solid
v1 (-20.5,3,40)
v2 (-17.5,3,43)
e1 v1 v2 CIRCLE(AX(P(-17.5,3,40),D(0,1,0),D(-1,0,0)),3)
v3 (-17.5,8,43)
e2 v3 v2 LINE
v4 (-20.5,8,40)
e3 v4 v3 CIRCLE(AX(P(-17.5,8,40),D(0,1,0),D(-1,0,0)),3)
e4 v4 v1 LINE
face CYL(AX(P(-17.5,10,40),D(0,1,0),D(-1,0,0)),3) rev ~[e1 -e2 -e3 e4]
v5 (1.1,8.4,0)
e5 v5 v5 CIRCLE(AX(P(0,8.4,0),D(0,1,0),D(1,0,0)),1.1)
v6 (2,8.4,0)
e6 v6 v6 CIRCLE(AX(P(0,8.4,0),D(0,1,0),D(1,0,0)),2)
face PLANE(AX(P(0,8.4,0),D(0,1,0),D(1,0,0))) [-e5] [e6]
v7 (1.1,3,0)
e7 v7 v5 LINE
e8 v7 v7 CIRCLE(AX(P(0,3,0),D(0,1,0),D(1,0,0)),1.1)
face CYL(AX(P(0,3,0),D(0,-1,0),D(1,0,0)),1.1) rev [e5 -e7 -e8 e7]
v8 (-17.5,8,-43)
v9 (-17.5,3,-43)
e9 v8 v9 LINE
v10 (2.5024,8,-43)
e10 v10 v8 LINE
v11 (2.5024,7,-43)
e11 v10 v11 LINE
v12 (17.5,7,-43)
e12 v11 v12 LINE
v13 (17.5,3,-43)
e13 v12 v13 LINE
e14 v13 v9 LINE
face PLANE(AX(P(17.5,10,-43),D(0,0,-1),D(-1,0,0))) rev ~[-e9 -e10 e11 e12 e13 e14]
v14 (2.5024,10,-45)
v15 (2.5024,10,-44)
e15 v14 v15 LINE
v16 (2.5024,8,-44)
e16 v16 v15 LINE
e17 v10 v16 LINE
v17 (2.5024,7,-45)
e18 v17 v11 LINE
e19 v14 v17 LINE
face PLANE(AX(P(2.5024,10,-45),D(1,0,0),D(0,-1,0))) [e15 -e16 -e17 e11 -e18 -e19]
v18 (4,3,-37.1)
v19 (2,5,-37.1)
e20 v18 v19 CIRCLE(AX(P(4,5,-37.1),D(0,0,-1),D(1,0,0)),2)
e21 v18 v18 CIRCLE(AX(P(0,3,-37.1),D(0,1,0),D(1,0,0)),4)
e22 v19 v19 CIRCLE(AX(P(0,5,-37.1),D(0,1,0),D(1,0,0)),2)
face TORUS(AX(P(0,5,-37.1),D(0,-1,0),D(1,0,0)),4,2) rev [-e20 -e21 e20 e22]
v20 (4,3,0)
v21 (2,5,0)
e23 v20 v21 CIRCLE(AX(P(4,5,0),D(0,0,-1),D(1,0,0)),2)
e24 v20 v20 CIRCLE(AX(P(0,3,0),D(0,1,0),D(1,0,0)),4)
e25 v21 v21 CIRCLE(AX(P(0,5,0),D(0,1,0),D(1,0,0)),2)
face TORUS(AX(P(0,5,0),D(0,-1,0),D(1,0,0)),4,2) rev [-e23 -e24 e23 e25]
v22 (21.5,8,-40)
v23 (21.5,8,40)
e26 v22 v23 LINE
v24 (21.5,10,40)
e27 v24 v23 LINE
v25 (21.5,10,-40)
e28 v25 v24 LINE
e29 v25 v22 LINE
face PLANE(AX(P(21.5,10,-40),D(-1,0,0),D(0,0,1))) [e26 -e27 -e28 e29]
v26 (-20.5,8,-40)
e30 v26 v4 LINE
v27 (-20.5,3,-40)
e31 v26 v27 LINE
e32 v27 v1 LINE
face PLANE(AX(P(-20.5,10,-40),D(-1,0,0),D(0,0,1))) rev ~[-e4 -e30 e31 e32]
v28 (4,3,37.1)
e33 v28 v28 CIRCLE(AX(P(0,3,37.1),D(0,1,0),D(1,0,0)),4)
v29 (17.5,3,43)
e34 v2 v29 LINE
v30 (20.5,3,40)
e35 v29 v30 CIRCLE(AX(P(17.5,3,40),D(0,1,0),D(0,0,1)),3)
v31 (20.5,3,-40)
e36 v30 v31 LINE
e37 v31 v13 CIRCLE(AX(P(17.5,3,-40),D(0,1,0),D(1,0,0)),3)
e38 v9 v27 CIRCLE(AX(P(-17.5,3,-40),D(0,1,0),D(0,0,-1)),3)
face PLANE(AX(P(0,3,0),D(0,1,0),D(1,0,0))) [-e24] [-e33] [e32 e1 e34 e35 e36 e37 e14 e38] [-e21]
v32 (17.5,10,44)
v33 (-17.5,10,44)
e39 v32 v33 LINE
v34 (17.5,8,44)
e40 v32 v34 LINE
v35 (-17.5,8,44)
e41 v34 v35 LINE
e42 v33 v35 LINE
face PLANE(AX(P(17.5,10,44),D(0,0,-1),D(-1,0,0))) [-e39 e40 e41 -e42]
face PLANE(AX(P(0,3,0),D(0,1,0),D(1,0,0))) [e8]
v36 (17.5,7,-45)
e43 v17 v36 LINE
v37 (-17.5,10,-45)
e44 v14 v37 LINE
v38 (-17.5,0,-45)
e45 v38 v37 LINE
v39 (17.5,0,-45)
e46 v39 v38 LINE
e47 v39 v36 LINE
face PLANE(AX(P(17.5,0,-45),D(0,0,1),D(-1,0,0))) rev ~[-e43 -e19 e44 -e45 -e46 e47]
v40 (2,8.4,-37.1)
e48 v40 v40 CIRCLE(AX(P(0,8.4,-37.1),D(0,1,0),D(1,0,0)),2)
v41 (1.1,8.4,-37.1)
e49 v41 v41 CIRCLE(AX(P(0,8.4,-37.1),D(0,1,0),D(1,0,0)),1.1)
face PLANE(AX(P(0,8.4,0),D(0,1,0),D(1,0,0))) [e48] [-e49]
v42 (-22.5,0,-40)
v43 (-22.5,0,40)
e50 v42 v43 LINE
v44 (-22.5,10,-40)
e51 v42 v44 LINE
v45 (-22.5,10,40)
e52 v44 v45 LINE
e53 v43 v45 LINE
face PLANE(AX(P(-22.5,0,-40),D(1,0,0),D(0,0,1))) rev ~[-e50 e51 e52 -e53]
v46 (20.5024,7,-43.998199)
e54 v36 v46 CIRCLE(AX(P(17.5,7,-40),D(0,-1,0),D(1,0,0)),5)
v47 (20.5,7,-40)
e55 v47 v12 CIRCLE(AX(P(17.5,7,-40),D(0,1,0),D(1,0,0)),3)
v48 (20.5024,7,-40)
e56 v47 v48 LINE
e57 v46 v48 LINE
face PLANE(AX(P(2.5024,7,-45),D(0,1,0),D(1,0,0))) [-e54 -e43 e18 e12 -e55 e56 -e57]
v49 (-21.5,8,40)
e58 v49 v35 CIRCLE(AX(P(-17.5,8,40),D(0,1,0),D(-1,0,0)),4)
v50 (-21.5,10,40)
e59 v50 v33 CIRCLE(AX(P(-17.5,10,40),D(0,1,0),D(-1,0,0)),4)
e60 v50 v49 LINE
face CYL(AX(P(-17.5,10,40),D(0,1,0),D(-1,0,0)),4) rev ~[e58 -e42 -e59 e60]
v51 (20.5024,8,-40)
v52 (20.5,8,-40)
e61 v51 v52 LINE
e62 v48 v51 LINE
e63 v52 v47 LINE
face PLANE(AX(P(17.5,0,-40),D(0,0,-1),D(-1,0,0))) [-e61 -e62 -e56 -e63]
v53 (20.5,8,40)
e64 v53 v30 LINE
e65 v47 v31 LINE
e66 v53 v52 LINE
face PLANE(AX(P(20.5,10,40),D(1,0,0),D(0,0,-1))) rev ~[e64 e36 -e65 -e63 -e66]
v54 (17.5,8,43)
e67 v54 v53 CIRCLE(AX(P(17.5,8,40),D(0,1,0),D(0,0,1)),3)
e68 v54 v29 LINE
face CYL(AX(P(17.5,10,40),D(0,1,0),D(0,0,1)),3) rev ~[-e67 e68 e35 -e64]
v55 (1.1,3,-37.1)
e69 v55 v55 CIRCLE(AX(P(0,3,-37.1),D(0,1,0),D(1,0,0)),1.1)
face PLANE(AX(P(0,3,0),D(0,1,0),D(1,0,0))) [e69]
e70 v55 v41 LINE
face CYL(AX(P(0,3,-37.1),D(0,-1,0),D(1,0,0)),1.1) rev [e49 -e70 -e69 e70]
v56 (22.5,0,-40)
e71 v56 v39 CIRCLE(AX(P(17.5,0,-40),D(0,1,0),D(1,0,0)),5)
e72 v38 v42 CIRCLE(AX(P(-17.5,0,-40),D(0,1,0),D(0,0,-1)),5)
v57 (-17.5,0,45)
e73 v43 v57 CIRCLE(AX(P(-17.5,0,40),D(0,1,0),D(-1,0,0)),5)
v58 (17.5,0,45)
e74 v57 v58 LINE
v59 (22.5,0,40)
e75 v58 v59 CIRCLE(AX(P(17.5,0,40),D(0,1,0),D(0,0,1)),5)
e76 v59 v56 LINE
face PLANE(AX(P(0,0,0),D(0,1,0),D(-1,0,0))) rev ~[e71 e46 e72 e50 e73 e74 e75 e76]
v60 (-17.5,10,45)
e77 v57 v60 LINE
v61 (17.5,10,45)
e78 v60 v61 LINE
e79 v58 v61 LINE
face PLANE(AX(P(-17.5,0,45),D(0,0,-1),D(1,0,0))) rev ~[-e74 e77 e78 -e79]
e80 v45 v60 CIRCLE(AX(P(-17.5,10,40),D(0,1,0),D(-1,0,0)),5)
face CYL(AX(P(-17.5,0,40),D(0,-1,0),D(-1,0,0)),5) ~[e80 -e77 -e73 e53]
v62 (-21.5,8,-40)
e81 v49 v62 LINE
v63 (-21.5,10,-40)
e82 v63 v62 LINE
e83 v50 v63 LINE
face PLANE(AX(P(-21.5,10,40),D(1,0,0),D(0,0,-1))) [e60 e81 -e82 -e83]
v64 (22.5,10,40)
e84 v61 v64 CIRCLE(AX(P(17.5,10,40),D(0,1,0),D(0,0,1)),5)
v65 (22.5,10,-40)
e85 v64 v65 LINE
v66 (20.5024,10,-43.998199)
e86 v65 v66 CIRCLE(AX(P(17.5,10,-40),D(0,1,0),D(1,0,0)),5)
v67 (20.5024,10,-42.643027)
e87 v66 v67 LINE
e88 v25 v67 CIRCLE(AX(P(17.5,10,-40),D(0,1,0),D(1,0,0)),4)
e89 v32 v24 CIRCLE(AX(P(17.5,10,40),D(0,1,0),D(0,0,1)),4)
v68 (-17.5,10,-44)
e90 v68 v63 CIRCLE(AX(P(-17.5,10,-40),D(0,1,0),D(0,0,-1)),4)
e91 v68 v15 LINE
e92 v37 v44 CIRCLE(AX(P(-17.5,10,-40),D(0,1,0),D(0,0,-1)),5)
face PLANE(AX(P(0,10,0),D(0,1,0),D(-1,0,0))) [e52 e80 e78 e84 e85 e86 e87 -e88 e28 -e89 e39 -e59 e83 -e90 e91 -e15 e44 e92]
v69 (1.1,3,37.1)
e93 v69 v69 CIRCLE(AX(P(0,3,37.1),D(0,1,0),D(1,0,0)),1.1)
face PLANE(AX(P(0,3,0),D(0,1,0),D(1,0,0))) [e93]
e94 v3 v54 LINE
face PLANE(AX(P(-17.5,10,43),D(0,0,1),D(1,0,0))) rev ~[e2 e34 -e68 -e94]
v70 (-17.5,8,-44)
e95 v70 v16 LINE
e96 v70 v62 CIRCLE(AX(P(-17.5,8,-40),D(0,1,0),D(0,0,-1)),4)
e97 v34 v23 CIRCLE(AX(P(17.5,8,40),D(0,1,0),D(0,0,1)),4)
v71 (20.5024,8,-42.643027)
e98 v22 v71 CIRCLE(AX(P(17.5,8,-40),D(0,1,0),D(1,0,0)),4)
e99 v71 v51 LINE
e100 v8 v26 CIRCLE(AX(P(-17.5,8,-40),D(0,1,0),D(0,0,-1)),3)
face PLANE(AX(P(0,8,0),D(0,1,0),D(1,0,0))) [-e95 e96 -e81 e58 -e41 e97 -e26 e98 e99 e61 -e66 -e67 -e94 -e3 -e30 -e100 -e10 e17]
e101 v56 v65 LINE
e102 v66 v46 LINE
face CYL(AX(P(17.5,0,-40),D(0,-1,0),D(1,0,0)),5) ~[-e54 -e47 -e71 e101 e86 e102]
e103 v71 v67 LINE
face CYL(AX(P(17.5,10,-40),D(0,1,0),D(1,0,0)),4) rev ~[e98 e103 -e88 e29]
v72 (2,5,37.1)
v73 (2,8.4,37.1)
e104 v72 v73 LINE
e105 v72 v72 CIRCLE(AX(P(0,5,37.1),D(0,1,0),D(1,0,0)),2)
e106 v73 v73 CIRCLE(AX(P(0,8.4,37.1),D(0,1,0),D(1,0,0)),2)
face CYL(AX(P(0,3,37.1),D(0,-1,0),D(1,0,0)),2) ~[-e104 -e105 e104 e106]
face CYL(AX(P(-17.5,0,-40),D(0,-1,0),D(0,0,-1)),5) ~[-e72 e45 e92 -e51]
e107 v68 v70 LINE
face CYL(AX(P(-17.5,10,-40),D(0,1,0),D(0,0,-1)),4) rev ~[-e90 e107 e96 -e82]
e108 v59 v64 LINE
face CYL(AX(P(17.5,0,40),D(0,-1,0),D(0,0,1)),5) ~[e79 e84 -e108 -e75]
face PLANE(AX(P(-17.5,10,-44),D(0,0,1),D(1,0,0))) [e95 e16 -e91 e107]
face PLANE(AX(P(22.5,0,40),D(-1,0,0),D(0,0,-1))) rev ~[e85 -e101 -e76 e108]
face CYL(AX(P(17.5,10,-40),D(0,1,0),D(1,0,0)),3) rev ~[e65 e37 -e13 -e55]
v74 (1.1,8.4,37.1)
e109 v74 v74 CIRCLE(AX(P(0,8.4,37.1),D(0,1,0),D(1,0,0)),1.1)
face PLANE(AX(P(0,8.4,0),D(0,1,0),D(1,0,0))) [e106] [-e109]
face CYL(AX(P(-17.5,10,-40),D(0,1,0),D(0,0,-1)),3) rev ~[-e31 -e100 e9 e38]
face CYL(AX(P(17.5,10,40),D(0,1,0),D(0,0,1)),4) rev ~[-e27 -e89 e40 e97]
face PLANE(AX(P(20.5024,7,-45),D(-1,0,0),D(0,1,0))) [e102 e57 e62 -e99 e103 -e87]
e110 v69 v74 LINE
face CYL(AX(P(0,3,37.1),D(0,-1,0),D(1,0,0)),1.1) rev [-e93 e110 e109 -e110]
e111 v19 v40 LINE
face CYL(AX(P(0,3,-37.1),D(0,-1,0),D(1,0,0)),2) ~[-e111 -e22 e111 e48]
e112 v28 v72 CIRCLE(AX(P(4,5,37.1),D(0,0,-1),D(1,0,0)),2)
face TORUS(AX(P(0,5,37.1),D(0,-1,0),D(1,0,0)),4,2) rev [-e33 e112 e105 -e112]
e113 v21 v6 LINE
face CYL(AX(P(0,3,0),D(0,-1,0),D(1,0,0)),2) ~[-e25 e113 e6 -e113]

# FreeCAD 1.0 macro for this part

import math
import FreeCAD as App
import Part
import Sketcher
from FreeCAD import Vector
Q = App.Units.Quantity


def edges_at(feature, points):
    """Names of the edges that pass closest to the given points."""
    edges = feature.Shape.Edges
    near = lambda p: min(range(len(edges)), key=lambda i: edges[i].distToShape(Part.Vertex(*p))[0])
    return sorted({f"Edge{near(p) + 1}" for p in points})


def add_polygon(sketch, points):
    """Adds a closed chain of lines whose ends are joined by coincident constraints."""
    first, n = sketch.GeometryCount, len(points)
    for a, b in zip(points, points[1:] + points[:1]):
        sketch.addGeometry(Part.LineSegment(App.Vector(*a, 0), App.Vector(*b, 0)), False)
    for i in range(n):
        sketch.addConstraint(Sketcher.Constraint("Coincident", first + i, 2, first + (i + 1) % n, 1))

doc = App.newDocument("Part")
body = doc.addObject("PartDesign::Body", "Body")

# Sketch on XZ plane
sketch1 = body.newObject("Sketcher::SketchObject", "Sketch")
sketch1.AttachmentSupport = (doc.getObject("XZ_Plane"), [""])
sketch1.MapMode = "FlatFace"
sketch1.addGeometry([
    Part.ArcOfCircle(Part.Circle(Vector(-17.5, 40, 0), Vector(0, 0, 1), 5), math.radians(90), math.radians(180)),  # 0
    Part.LineSegment(Vector(-17.5, 45, 0), Vector(17.5, 45, 0)),  # 1
    Part.ArcOfCircle(Part.Circle(Vector(17.5, 40, 0), Vector(0, 0, 1), 5), math.radians(0), math.radians(90)),  # 2
    Part.LineSegment(Vector(22.5, 40, 0), Vector(22.5, -40, 0)),  # 3
    Part.ArcOfCircle(Part.Circle(Vector(17.5, -40, 0), Vector(0, 0, 1), 5), math.radians(-90), math.radians(0)),  # 4
    Part.LineSegment(Vector(17.5, -45, 0), Vector(-17.5, -45, 0)),  # 5
    Part.ArcOfCircle(Part.Circle(Vector(-17.5, -40, 0), Vector(0, 0, 1), 5), math.radians(180), math.radians(270)),  # 6
    Part.LineSegment(Vector(-22.5, -40, 0), Vector(-22.5, 40, 0)),  # 7
], False)
sketch1.addConstraint([
    Sketcher.Constraint("Tangent", 0, 1, 1, 1),
    Sketcher.Constraint("Tangent", 1, 2, 2, 2),
    Sketcher.Constraint("Tangent", 2, 1, 3, 1),
    Sketcher.Constraint("Tangent", 3, 2, 4, 2),
    Sketcher.Constraint("Tangent", 4, 1, 5, 1),
    Sketcher.Constraint("Tangent", 5, 2, 6, 2),
    Sketcher.Constraint("Tangent", 6, 1, 7, 1),
    Sketcher.Constraint("Tangent", 7, 2, 0, 2),
    Sketcher.Constraint("Horizontal", 1),
    Sketcher.Constraint("Vertical", 3),
    Sketcher.Constraint("Horizontal", 5),
    Sketcher.Constraint("Vertical", 7),
    Sketcher.Constraint("Equal", 0, 2),
    Sketcher.Constraint("Equal", 2, 4),
    Sketcher.Constraint("Equal", 4, 6),
    Sketcher.Constraint("Symmetric", 0, 3, 4, 3, -1, 1),
    Sketcher.Constraint("Radius", 0, Q("5 mm")),
    Sketcher.Constraint("DistanceY", -1, 1, 0, 1, Q("45 mm")),
    Sketcher.Constraint("DistanceX", 6, 1, 3, 2, Q("45 mm")),
])
pad1 = body.newObject("PartDesign::Pad", "Pad")
pad1.Profile = sketch1
pad1.Length = 10
pad1.Reversed = True

# Sketch on XZ plane
sketch2 = body.newObject("Sketcher::SketchObject", "Sketch001")
sketch2.AttachmentSupport = (doc.getObject("XZ_Plane"), [""])
sketch2.MapMode = "FlatFace"
sketch2.AttachmentOffset = App.Placement(Vector(0, 0, -10), App.Rotation())
sketch2.addGeometry([
    Part.LineSegment(Vector(-21.5, -40, 0), Vector(-21.5, 40, 0)),  # 0
    Part.ArcOfCircle(Part.Circle(Vector(-17.5, 40, 0), Vector(0, 0, 1), 4), math.radians(90), math.radians(180)),  # 1
    Part.LineSegment(Vector(-17.5, 44, 0), Vector(17.5, 44, 0)),  # 2
    Part.ArcOfCircle(Part.Circle(Vector(17.5, 40, 0), Vector(0, 0, 1), 4), math.radians(0), math.radians(90)),  # 3
    Part.LineSegment(Vector(21.5, 40, 0), Vector(21.5, -40, 0)),  # 4
    Part.ArcOfCircle(Part.Circle(Vector(17.5, -40, 0), Vector(0, 0, 1), 4), math.radians(-90), math.radians(0)),  # 5
    Part.LineSegment(Vector(17.5, -44, 0), Vector(-17.5, -44, 0)),  # 6
    Part.ArcOfCircle(Part.Circle(Vector(-17.5, -40, 0), Vector(0, 0, 1), 4), math.radians(180), math.radians(270)),  # 7
    Part.LineSegment(Vector(-20.5, 40, 0), Vector(-20.5, -40, 0)),  # 8
    Part.ArcOfCircle(Part.Circle(Vector(-17.5, -40, 0), Vector(0, 0, 1), 3), math.radians(180), math.radians(270)),  # 9
    Part.LineSegment(Vector(-17.5, -43, 0), Vector(17.5, -43, 0)),  # 10
    Part.ArcOfCircle(Part.Circle(Vector(17.5, -40, 0), Vector(0, 0, 1), 3), math.radians(-90), math.radians(0)),  # 11
    Part.LineSegment(Vector(20.5, -40, 0), Vector(20.5, 40, 0)),  # 12
    Part.ArcOfCircle(Part.Circle(Vector(17.5, 40, 0), Vector(0, 0, 1), 3), math.radians(0), math.radians(90)),  # 13
    Part.LineSegment(Vector(17.5, 43, 0), Vector(-17.5, 43, 0)),  # 14
    Part.ArcOfCircle(Part.Circle(Vector(-17.5, 40, 0), Vector(0, 0, 1), 3), math.radians(90), math.radians(180)),  # 15
], False)
sketch2.addConstraint([
    Sketcher.Constraint("Tangent", 0, 2, 1, 2),
    Sketcher.Constraint("Tangent", 1, 1, 2, 1),
    Sketcher.Constraint("Tangent", 2, 2, 3, 2),
    Sketcher.Constraint("Tangent", 3, 1, 4, 1),
    Sketcher.Constraint("Tangent", 4, 2, 5, 2),
    Sketcher.Constraint("Tangent", 5, 1, 6, 1),
    Sketcher.Constraint("Tangent", 6, 2, 7, 2),
    Sketcher.Constraint("Tangent", 7, 1, 0, 1),
    Sketcher.Constraint("Tangent", 8, 2, 9, 1),
    Sketcher.Constraint("Tangent", 9, 2, 10, 1),
    Sketcher.Constraint("Tangent", 10, 2, 11, 1),
    Sketcher.Constraint("Tangent", 11, 2, 12, 1),
    Sketcher.Constraint("Tangent", 12, 2, 13, 1),
    Sketcher.Constraint("Tangent", 13, 2, 14, 1),
    Sketcher.Constraint("Tangent", 14, 2, 15, 1),
    Sketcher.Constraint("Tangent", 15, 2, 8, 1),
    Sketcher.Constraint("Vertical", 0),
    Sketcher.Constraint("Horizontal", 2),
    Sketcher.Constraint("Vertical", 4),
    Sketcher.Constraint("Horizontal", 6),
    Sketcher.Constraint("Vertical", 8),
    Sketcher.Constraint("Horizontal", 10),
    Sketcher.Constraint("Vertical", 12),
    Sketcher.Constraint("Horizontal", 14),
    Sketcher.Constraint("Coincident", 9, 3, 7, 3),
    Sketcher.Constraint("Coincident", 11, 3, 5, 3),
    Sketcher.Constraint("Coincident", 13, 3, 3, 3),
    Sketcher.Constraint("Equal", 1, 3),
    Sketcher.Constraint("Equal", 3, 5),
    Sketcher.Constraint("Equal", 5, 7),
    Sketcher.Constraint("Equal", 13, 15),
    Sketcher.Constraint("Symmetric", 1, 3, 5, 3, -1, 1),
    Sketcher.Constraint("Radius", 1, Q("4 mm")),
    Sketcher.Constraint("Radius", 9, Q("3 mm")),
    Sketcher.Constraint("DistanceX", 2, 1, 2, 2, Q("35 mm")),
    Sketcher.Constraint("DistanceY", 0, 1, 0, 2, Q("80 mm")),
])
pocket1 = body.newObject("PartDesign::Pocket", "Pocket")
pocket1.Profile = sketch2
pocket1.Length = 2
pocket1.Reversed = True

# Sketch on XZ plane
sketch3 = body.newObject("Sketcher::SketchObject", "Sketch002")
sketch3.AttachmentSupport = (doc.getObject("XZ_Plane"), [""])
sketch3.MapMode = "FlatFace"
sketch3.AttachmentOffset = App.Placement(Vector(0, 0, -10), App.Rotation())
sketch3.addGeometry([
    Part.ArcOfCircle(Part.Circle(Vector(17.5, -40, 0), Vector(0, 0, 1), 3), math.radians(-90), math.radians(0)),  # 0
    Part.LineSegment(Vector(17.5, -43, 0), Vector(-17.5, -43, 0)),  # 1
    Part.ArcOfCircle(Part.Circle(Vector(-17.5, -40, 0), Vector(0, 0, 1), 3), math.radians(180), math.radians(270)),  # 2
    Part.LineSegment(Vector(-20.5, -40, 0), Vector(-20.5, 40, 0)),  # 3
    Part.ArcOfCircle(Part.Circle(Vector(-17.5, 40, 0), Vector(0, 0, 1), 3), math.radians(90), math.radians(180)),  # 4
    Part.LineSegment(Vector(-17.5, 43, 0), Vector(17.5, 43, 0)),  # 5
    Part.ArcOfCircle(Part.Circle(Vector(17.5, 40, 0), Vector(0, 0, 1), 3), math.radians(0), math.radians(90)),  # 6
    Part.LineSegment(Vector(20.5, 40, 0), Vector(20.5, -40, 0)),  # 7
], False)
sketch3.addConstraint([
    Sketcher.Constraint("Tangent", 0, 1, 1, 1),
    Sketcher.Constraint("Tangent", 1, 2, 2, 2),
    Sketcher.Constraint("Tangent", 2, 1, 3, 1),
    Sketcher.Constraint("Tangent", 3, 2, 4, 2),
    Sketcher.Constraint("Tangent", 4, 1, 5, 1),
    Sketcher.Constraint("Tangent", 5, 2, 6, 2),
    Sketcher.Constraint("Tangent", 6, 1, 7, 1),
    Sketcher.Constraint("Tangent", 7, 2, 0, 2),
    Sketcher.Constraint("Horizontal", 1),
    Sketcher.Constraint("Vertical", 3),
    Sketcher.Constraint("Horizontal", 5),
    Sketcher.Constraint("Vertical", 7),
    Sketcher.Constraint("Equal", 0, 2),
    Sketcher.Constraint("Equal", 2, 4),
    Sketcher.Constraint("Equal", 4, 6),
    Sketcher.Constraint("Symmetric", 0, 3, 4, 3, -1, 1),
    Sketcher.Constraint("Radius", 0, Q("3 mm")),
    Sketcher.Constraint("DistanceX", 1, 2, 1, 1, Q("35 mm")),
    Sketcher.Constraint("DistanceY", 3, 1, 3, 2, Q("80 mm")),
])
pocket2 = body.newObject("PartDesign::Pocket", "Pocket001")
pocket2.Profile = sketch3
pocket2.Length = 7
pocket2.Reversed = True

# Sketch on XZ plane
sketch4 = body.newObject("Sketcher::SketchObject", "Sketch003")
sketch4.AttachmentSupport = (doc.getObject("XZ_Plane"), [""])
sketch4.MapMode = "FlatFace"
sketch4.AttachmentOffset = App.Placement(Vector(0, 0, -3), App.Rotation())
sketch4.addGeometry([
    Part.Circle(Vector(0, 0, 0), Vector(0, 0, 1), 2),
    Part.Circle(Vector(0, 0, 0), Vector(0, 0, 1), 1.1),
], False)
sketch4.addConstraint([
    Sketcher.Constraint("Coincident", 0, 3, -1, 1),
    Sketcher.Constraint("Coincident", 1, 3, -1, 1),
    Sketcher.Constraint("Diameter", 0, Q("4 mm")),
    Sketcher.Constraint("Diameter", 1, Q("2.2 mm")),
])
pad2 = body.newObject("PartDesign::Pad", "Pad001")
pad2.Profile = sketch4
pad2.Length = 5.4
pad2.Reversed = True
doc.recompute()

fillet = body.newObject("PartDesign::Fillet", "Fillet")
fillet.Base = (pad2, edges_at(pad2, [(-2, 3, 0)]))
fillet.Radius = 2

# Sketch on XZ plane
sketch5 = body.newObject("Sketcher::SketchObject", "Sketch004")
sketch5.AttachmentSupport = (doc.getObject("XZ_Plane"), [""])
sketch5.MapMode = "FlatFace"
sketch5.AttachmentOffset = App.Placement(Vector(0, 0, -3), App.Rotation())
sketch5.addGeometry([
    Part.Circle(Vector(0, 37.1, 0), Vector(0, 0, 1), 2),
    Part.Circle(Vector(0, 37.1, 0), Vector(0, 0, 1), 1.1),
    Part.Circle(Vector(0, -37.1, 0), Vector(0, 0, 1), 2),
    Part.Circle(Vector(0, -37.1, 0), Vector(0, 0, 1), 1.1),
], False)
sketch5.addConstraint([
    Sketcher.Constraint("Coincident", 1, 3, 0, 3),
    Sketcher.Constraint("Coincident", 3, 3, 2, 3),
    Sketcher.Constraint("Equal", 0, 2),
    Sketcher.Constraint("Equal", 1, 3),
    Sketcher.Constraint("Symmetric", 0, 3, 2, 3, -1, 1),
    Sketcher.Constraint("PointOnObject", 0, 3, -2),
    Sketcher.Constraint("Diameter", 0, Q("4 mm")),
    Sketcher.Constraint("Diameter", 1, Q("2.2 mm")),
    Sketcher.Constraint("DistanceY", -1, 1, 0, 3, Q("37.1 mm")),
])
pad3 = body.newObject("PartDesign::Pad", "Pad002")
pad3.Profile = sketch5
pad3.Length = 5.4
pad3.Reversed = True
doc.recompute()

fillet2 = body.newObject("PartDesign::Fillet", "Fillet001")
fillet2.Base = (pad3, edges_at(pad3, [(-2, 3, 37.1), (-2, 3, -37.1)]))
fillet2.Radius = 2

# Sketch on XY plane
sketch6 = body.newObject("Sketcher::SketchObject", "Sketch005")
sketch6.AttachmentSupport = (doc.getObject("XY_Plane"), [""])
sketch6.MapMode = "FlatFace"
sketch6.AttachmentOffset = App.Placement(Vector(0, 0, -45), App.Rotation())
add_polygon(sketch6, [(2.5024, 10), (20.5024, 10), (20.5024, 7), (2.5024, 7)])  # lines 0-3
sketch6.addConstraint([
    Sketcher.Constraint("Horizontal", 0),
    Sketcher.Constraint("Vertical", 1),
    Sketcher.Constraint("Horizontal", 2),
    Sketcher.Constraint("Vertical", 3),
    Sketcher.Constraint("DistanceX", 0, 1, 0, 2, Q("18 mm")),
    Sketcher.Constraint("DistanceY", 1, 2, 1, 1, Q("3 mm")),
    Sketcher.Constraint("DistanceY", -1, 1, 0, 2, Q("10 mm")),
    Sketcher.Constraint("DistanceX", -1, 1, 0, 2, Q("20.5024 mm")),
])
pocket3 = body.newObject("PartDesign::Pocket", "Pocket002")
pocket3.Profile = sketch6
pocket3.Length = 5
pocket3.Reversed = True

doc.recompute()
